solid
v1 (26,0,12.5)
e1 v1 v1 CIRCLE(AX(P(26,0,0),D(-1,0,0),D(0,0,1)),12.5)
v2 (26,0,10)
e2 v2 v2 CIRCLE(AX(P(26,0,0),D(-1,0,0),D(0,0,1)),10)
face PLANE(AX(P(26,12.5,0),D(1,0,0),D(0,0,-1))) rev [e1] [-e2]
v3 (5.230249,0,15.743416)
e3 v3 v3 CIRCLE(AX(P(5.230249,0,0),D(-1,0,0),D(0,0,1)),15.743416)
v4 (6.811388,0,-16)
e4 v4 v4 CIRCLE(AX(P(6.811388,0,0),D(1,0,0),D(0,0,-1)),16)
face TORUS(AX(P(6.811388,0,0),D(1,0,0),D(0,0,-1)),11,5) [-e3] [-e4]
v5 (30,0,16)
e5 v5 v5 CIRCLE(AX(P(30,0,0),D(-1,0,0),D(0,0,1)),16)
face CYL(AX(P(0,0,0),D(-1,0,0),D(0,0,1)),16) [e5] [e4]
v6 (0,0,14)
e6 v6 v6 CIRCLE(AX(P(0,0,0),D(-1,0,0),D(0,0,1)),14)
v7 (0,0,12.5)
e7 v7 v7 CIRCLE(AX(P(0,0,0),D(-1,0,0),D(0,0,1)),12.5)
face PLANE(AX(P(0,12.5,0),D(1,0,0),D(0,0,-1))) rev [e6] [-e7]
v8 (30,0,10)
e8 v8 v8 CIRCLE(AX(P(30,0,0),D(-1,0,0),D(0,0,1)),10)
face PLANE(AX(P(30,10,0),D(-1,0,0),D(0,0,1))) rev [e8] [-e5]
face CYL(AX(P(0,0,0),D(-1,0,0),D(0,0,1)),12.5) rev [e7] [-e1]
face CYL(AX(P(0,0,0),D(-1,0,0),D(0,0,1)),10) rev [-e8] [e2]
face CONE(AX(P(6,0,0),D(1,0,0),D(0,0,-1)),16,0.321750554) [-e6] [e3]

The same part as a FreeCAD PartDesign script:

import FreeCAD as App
import Part
import Sketcher
from FreeCAD import Vector


def edges_at(feature, points):
    """Names of the edges that pass closest to the given points."""
    edges = feature.Shape.Edges
    near = lambda p: min(range(len(edges)), key=lambda i: edges[i].distToShape(Part.Vertex(*p))[0])
    return sorted({f"Edge{near(p) + 1}" for p in points})

doc = App.newDocument("Part")
body = doc.addObject("PartDesign::Body", "Body")

# Sketch on XY plane
sketch1 = body.newObject("Sketcher::SketchObject", "Sketch")
sketch1.AttachmentSupport = (doc.getObject("XY_Plane"), [""])
sketch1.MapMode = "FlatFace"
sketch1.addGeometry(Part.LineSegment(Vector(0, 12.5, 0), Vector(26, 12.5, 0)), False)
sketch1.addGeometry(Part.LineSegment(Vector(26, 12.5, 0), Vector(26, 10, 0)), False)
sketch1.addGeometry(Part.LineSegment(Vector(26, 10, 0), Vector(30, 10, 0)), False)
sketch1.addGeometry(Part.LineSegment(Vector(30, 10, 0), Vector(30, 16, 0)), False)
sketch1.addGeometry(Part.LineSegment(Vector(30, 16, 0), Vector(6, 16, 0)), False)
sketch1.addGeometry(Part.LineSegment(Vector(6, 16, 0), Vector(0, 14, 0)), False)
sketch1.addGeometry(Part.LineSegment(Vector(0, 14, 0), Vector(0, 12.5, 0)), False)
sketch1.addConstraint(Sketcher.Constraint("Coincident", 0, 2, 1, 1))
sketch1.addConstraint(Sketcher.Constraint("Coincident", 1, 2, 2, 1))
sketch1.addConstraint(Sketcher.Constraint("Coincident", 2, 2, 3, 1))
sketch1.addConstraint(Sketcher.Constraint("Coincident", 3, 2, 4, 1))
sketch1.addConstraint(Sketcher.Constraint("Coincident", 4, 2, 5, 1))
sketch1.addConstraint(Sketcher.Constraint("Coincident", 5, 2, 6, 1))
sketch1.addConstraint(Sketcher.Constraint("Coincident", 6, 2, 0, 1))
sketch1.addConstraint(Sketcher.Constraint("Horizontal", 0))
sketch1.addConstraint(Sketcher.Constraint("Vertical", 1))
sketch1.addConstraint(Sketcher.Constraint("Horizontal", 2))
sketch1.addConstraint(Sketcher.Constraint("Vertical", 3))
sketch1.addConstraint(Sketcher.Constraint("Horizontal", 4))
sketch1.addConstraint(Sketcher.Constraint("Vertical", 6))
sketch1.addConstraint(Sketcher.Constraint("PointOnObject", 5, 2, -2))
sketch1.addConstraint(Sketcher.Constraint("DistanceX", 0, 1, 0, 2, 26.0))
sketch1.addConstraint(Sketcher.Constraint("DistanceX", 2, 1, 2, 2, 4.0))
sketch1.addConstraint(Sketcher.Constraint("DistanceX", 4, 2, 4, 1, 24.0))
sketch1.addConstraint(Sketcher.Constraint("DistanceY", 3, 1, 3, 2, 6.0))
sketch1.addConstraint(Sketcher.Constraint("DistanceY", 1, 2, 1, 1, 2.5))
sketch1.addConstraint(Sketcher.Constraint("DistanceY", 6, 2, 6, 1, 1.5))
sketch1.addConstraint(Sketcher.Constraint("DistanceY", -1, 1, 1, 2, 10.0))
revolution = body.newObject("PartDesign::Revolution", "Revolution")
revolution.Profile = sketch1
revolution.ReferenceAxis = (sketch1, ["H_Axis"])
revolution.Angle = 360
doc.recompute()

fillet = body.newObject("PartDesign::Fillet", "Fillet")
fillet.Base = (revolution, edges_at(revolution, [(6, 0, -16)]))
fillet.Radius = 5

doc.recompute()
